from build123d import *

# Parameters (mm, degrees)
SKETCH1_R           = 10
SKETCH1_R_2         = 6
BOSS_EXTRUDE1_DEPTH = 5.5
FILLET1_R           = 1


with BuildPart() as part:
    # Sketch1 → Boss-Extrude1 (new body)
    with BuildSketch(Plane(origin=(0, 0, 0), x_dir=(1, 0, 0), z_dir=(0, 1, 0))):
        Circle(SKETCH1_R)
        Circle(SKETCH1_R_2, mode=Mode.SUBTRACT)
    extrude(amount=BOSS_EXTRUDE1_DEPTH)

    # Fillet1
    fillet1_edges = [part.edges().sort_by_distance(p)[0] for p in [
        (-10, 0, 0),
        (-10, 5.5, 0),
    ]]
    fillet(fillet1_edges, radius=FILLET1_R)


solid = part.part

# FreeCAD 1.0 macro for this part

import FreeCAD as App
import Part
import Sketcher
from FreeCAD import Vector


def edges_at(feature, points):
    """Names of the edges that pass closest to the given points."""
    edges = feature.Shape.Edges
    near = lambda p: min(range(len(edges)), key=lambda i: edges[i].distToShape(Part.Vertex(*p))[0])
    return sorted({f"Edge{near(p) + 1}" for p in points})

doc = App.newDocument("Part")
params = doc.addObject("Spreadsheet::Sheet", "Params")
for row, (alias, value) in enumerate([
    ("sketch1_diameter", "20 mm"),
    ("sketch1_diameter2", "12 mm"),
    ("pad1_length", "5.5 mm"),
    ("fillet_radius", "1 mm"),
], start=1):
    params.set(f"A{row}", alias)
    params.set(f"B{row}", "=" + value)
    params.setAlias(f"B{row}", alias)

body = doc.addObject("PartDesign::Body", "Body")

# Sketch on XZ plane
sketch1 = doc.addObject("Sketcher::SketchObject", "Sketch")
body.addObject(sketch1)
sketch1.AttachmentSupport = (doc.XZ_Plane, [""])
sketch1.MapMode = "FlatFace"
sketch1.addGeometry(Part.Circle(Vector(0, 0, 0), Vector(0, 0, 1), 10), False)
sketch1.addGeometry(Part.Circle(Vector(0, 0, 0), Vector(0, 0, 1), 6), False)
sketch1.addConstraint(Sketcher.Constraint("Coincident", 0, 3, -1, 1))
sketch1.addConstraint(Sketcher.Constraint("Coincident", 1, 3, -1, 1))
sketch1.addConstraint(Sketcher.Constraint("Diameter", 0, 20.0))
sketch1.addConstraint(Sketcher.Constraint("Diameter", 1, 12.0))
sketch1.setExpression("Constraints[2]", "Params.sketch1_diameter")
sketch1.setExpression("Constraints[3]", "Params.sketch1_diameter2")
pad1 = doc.addObject("PartDesign::Pad", "Pad")
body.addObject(pad1)
pad1.Profile = sketch1
pad1.setExpression("Length", "Params.pad1_length")
pad1.Reversed = True
doc.recompute()

fillet = doc.addObject("PartDesign::Fillet", "Fillet")
body.addObject(fillet)
fillet.Base = (pad1, edges_at(pad1, [(-10, 0, 0), (-10, 5.5, 0)]))
fillet.setExpression("Radius", "Params.fillet_radius")

doc.recompute()
